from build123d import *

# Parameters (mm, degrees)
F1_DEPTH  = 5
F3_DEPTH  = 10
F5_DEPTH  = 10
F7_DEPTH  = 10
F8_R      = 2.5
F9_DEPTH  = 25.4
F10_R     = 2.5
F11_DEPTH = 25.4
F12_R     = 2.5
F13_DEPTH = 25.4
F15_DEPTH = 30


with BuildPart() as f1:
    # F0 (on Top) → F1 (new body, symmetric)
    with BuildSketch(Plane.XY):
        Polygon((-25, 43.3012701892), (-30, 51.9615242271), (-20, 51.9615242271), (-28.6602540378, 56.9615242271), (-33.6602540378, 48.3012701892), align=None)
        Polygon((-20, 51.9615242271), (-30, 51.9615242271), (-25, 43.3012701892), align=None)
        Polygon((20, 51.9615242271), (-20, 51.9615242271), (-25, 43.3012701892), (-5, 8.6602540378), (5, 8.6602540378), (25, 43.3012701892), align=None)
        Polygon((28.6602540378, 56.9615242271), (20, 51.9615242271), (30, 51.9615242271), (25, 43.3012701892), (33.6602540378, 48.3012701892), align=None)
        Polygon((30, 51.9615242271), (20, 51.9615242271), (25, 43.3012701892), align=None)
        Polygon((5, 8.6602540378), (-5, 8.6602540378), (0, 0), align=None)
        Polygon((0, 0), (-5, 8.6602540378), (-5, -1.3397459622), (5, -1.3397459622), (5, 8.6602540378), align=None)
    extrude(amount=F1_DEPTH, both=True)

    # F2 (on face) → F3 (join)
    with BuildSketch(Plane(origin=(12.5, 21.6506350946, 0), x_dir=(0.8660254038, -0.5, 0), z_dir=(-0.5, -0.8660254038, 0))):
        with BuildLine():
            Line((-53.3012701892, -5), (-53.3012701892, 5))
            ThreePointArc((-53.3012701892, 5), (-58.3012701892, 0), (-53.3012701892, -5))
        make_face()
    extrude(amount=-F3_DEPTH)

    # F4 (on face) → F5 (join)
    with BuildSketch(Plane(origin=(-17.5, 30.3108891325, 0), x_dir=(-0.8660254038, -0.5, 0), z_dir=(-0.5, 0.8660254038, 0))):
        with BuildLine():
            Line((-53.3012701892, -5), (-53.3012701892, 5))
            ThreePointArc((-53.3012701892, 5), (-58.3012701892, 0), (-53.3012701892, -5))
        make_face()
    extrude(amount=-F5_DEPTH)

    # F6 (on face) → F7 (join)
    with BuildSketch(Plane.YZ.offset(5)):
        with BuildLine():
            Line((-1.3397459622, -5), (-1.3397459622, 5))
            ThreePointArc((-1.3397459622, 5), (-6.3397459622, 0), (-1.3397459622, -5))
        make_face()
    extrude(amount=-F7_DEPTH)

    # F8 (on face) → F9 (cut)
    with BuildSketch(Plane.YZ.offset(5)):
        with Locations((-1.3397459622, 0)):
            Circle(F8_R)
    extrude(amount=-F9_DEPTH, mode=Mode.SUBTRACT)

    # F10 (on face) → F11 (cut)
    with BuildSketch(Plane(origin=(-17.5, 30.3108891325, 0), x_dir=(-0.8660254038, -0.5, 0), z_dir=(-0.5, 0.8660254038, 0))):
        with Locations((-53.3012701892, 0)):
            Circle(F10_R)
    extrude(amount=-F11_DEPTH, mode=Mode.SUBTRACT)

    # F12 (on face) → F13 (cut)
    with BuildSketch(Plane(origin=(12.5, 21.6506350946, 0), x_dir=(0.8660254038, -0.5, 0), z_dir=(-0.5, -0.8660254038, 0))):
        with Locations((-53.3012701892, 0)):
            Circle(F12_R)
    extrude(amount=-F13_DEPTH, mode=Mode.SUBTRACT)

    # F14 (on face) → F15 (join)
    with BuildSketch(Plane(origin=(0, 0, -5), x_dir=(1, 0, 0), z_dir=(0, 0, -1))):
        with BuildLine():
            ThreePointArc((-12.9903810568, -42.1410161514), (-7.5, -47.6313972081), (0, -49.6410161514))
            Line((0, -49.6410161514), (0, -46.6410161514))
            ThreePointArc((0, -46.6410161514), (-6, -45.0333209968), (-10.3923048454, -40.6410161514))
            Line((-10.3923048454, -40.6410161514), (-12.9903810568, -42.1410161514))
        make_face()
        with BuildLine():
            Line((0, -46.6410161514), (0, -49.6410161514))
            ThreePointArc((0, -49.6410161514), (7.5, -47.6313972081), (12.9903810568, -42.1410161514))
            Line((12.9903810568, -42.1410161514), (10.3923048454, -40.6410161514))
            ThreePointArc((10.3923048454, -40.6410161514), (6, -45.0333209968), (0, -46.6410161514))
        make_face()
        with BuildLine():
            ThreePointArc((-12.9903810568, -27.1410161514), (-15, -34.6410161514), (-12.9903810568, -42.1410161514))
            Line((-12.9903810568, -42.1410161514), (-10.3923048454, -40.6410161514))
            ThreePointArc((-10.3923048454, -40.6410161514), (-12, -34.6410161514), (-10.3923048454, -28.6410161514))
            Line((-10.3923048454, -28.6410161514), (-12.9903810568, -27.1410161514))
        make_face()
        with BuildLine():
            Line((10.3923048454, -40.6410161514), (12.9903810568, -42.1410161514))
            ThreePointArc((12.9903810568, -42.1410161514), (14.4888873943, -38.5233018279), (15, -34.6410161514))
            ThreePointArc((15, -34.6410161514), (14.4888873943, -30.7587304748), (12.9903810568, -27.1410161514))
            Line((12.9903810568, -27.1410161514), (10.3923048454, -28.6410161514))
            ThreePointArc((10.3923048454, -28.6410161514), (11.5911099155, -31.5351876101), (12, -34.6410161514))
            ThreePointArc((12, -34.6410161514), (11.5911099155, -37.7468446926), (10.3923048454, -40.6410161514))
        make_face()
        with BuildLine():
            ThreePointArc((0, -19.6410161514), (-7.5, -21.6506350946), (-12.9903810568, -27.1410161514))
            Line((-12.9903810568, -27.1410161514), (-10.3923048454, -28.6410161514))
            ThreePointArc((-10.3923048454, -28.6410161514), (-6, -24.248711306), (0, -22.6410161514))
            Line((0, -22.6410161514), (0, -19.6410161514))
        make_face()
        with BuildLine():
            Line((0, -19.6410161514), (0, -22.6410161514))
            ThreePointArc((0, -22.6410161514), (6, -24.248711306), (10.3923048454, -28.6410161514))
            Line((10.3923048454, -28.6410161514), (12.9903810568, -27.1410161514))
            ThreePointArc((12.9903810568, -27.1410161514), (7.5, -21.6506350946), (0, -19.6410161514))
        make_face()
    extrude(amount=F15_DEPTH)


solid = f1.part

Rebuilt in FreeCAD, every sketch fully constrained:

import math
import FreeCAD as App
import Part
import Sketcher

V = App.Vector
Q = App.Units.Quantity

doc = App.newDocument("Part")
params = doc.addObject("Spreadsheet::Sheet", "Params")
for row, (alias, value) in enumerate([
    ("sketch1_width", "10 mm"),
    ("sketch1_width2", "40 mm"),
    ("sketch1_length", "10 mm"),
    ("pad1_length", "10 mm"),
    ("sketch2_radius", "5 mm"),
    ("pad2_length", "10 mm"),
    ("sketch3_radius", "5 mm"),
    ("pad3_length", "10 mm"),
    ("sketch4_radius", "5 mm"),
    ("pad4_length", "10 mm"),
    ("sketch5_diameter", "5 mm"),
    ("pocket1_length", "25.4 mm"),
    ("sketch6_diameter", "5 mm"),
    ("pocket2_length", "25.4 mm"),
    ("sketch7_diameter", "5 mm"),
    ("pocket3_length", "25.4 mm"),
    ("sketch8_radius", "15 mm"),
    ("sketch8_radius2", "12 mm"),
    ("pad5_length", "30 mm"),
], start=1):
    params.set(f"A{row}", alias)
    params.set(f"B{row}", "=" + value)
    params.setAlias(f"B{row}", alias)

body = doc.addObject("PartDesign::Body", "Body")

# Sketch on XY plane
sketch1 = body.newObject("Sketcher::SketchObject", "Sketch")
sketch1.AttachmentSupport = (doc.getObject("XY_Plane"), [""])
sketch1.MapMode = "FlatFace"
sketch1.addGeometry([
    Part.LineSegment(V(-20, 52, 0), V(-29, 57, 0)),  # 0
    Part.LineSegment(V(-29, 57, 0), V(-34, 48, 0)),  # 1
    Part.LineSegment(V(-34, 48, 0), V(-25, 43, 0)),  # 2
    Part.LineSegment(V(-25, 43, 0), V(-5, 9, 0)),  # 3
    Part.LineSegment(V(-5, 9, 0), V(-5, -1, 0)),  # 4
    Part.LineSegment(V(-5, -1, 0), V(5, -1, 0)),  # 5
    Part.LineSegment(V(5, -1, 0), V(5, 9, 0)),  # 6
    Part.LineSegment(V(5, 9, 0), V(25, 43, 0)),  # 7
    Part.LineSegment(V(25, 43, 0), V(34, 48, 0)),  # 8
    Part.LineSegment(V(34, 48, 0), V(29, 57, 0)),  # 9
    Part.LineSegment(V(29, 57, 0), V(20, 52, 0)),  # 10
    Part.LineSegment(V(20, 52, 0), V(-20, 52, 0)),  # 11
], False)
sketch1.addConstraint([
    Sketcher.Constraint("Coincident", 0, 2, 1, 1),
    Sketcher.Constraint("Coincident", 1, 2, 2, 1),
    Sketcher.Constraint("Coincident", 2, 2, 3, 1),
    Sketcher.Constraint("Coincident", 3, 2, 4, 1),
    Sketcher.Constraint("Coincident", 4, 2, 5, 1),
    Sketcher.Constraint("Coincident", 5, 2, 6, 1),
    Sketcher.Constraint("Coincident", 6, 2, 7, 1),
    Sketcher.Constraint("Coincident", 7, 2, 8, 1),
    Sketcher.Constraint("Coincident", 8, 2, 9, 1),
    Sketcher.Constraint("Coincident", 9, 2, 10, 1),
    Sketcher.Constraint("Coincident", 10, 2, 11, 1),
    Sketcher.Constraint("Coincident", 11, 2, 0, 1),
    Sketcher.Constraint("Vertical", 4),
    Sketcher.Constraint("Horizontal", 5),
    Sketcher.Constraint("Vertical", 6),
    Sketcher.Constraint("Horizontal", 11),
    Sketcher.Constraint("Symmetric", 3, 2, 6, 2, -2),
    Sketcher.Constraint("Symmetric", 2, 2, 7, 2, -2),
    Sketcher.Constraint("Symmetric", 1, 2, 8, 2, -2),
    Sketcher.Constraint("Symmetric", 0, 2, 9, 2, -2),
    Sketcher.Constraint("Perpendicular", 0, 1),
    Sketcher.Constraint("Perpendicular", 1, 2),
    Sketcher.Constraint("Perpendicular", 2, 7),
    Sketcher.Constraint("Perpendicular", 9, 10),
    Sketcher.Constraint("Equal", 5, 4),
    Sketcher.Constraint("Equal", 0, 1),
    Sketcher.Constraint("Equal", 1, 2),
    Sketcher.Constraint("DistanceX", 5, 1, 5, 2, Q("10 mm")),
    Sketcher.Constraint("DistanceX", 11, 2, 11, 1, Q("40 mm")),
    Sketcher.Constraint("Angle", 0, Q("150 deg")),
    Sketcher.Constraint("Distance", 0, Q("10 mm")),
    Sketcher.Constraint("DistanceY", -1, 1, 1, 2, Q("48.30127 mm")),
])
sketch1.setExpression("Constraints[27]", "Params.sketch1_width")
sketch1.setExpression("Constraints[28]", "Params.sketch1_width2")
sketch1.setExpression("Constraints[30]", "Params.sketch1_length")
pad1 = body.newObject("PartDesign::Pad", "Pad")
pad1.Profile = sketch1
pad1.setExpression("Length", "Params.pad1_length")
pad1.Midplane = True

# Sketch on an angled plane
sketch2 = body.newObject("Sketcher::SketchObject", "Sketch001")
sketch2.Placement = App.Placement(V(12.5, 21.650635, 0), App.Rotation(V(0.866025404, -0.5, 0), V(0, 0, 1), V(-0.5, -0.866025404, 0), "ZXY"))
sketch2.addGeometry([
    Part.LineSegment(V(-53, -5, 0), V(-53, 5, 0)),
    Part.ArcOfCircle(Part.Circle(V(-53, 0, 0), V(0, 0, 1), 5), math.radians(90), math.radians(270)),
], False)
sketch2.addConstraint([
    Sketcher.Constraint("Coincident", 0, 1, 1, 2),
    Sketcher.Constraint("Coincident", 1, 1, 0, 2),
    Sketcher.Constraint("Vertical", 0),
    Sketcher.Constraint("PointOnObject", 1, 3, -1),
    Sketcher.Constraint("Vertical", 1, 3, 0, 1),
    Sketcher.Constraint("Radius", 1, Q("5 mm")),
    Sketcher.Constraint("DistanceX", 1, 3, -1, 1, Q("53.30127 mm")),
])
sketch2.setExpression("Constraints[5]", "Params.sketch2_radius")
pad2 = body.newObject("PartDesign::Pad", "Pad001")
pad2.Profile = sketch2
pad2.setExpression("Length", "Params.pad2_length")
pad2.Reversed = True

# Sketch on an angled plane
sketch3 = body.newObject("Sketcher::SketchObject", "Sketch002")
sketch3.Placement = App.Placement(V(-17.5, 30.310889, 0), App.Rotation(V(-0.866025404, -0.5, 0), V(0, 0, 1), V(-0.5, 0.866025404, 0), "ZXY"))
sketch3.addGeometry([
    Part.LineSegment(V(-53, -5, 0), V(-53, 5, 0)),
    Part.ArcOfCircle(Part.Circle(V(-53, 0, 0), V(0, 0, 1), 5), math.radians(90), math.radians(270)),
], False)
sketch3.addConstraint([
    Sketcher.Constraint("Coincident", 0, 1, 1, 2),
    Sketcher.Constraint("Coincident", 1, 1, 0, 2),
    Sketcher.Constraint("Vertical", 0),
    Sketcher.Constraint("PointOnObject", 1, 3, -1),
    Sketcher.Constraint("Vertical", 1, 3, 0, 1),
    Sketcher.Constraint("Radius", 1, Q("5 mm")),
    Sketcher.Constraint("DistanceX", 1, 3, -1, 1, Q("53.30127 mm")),
])
sketch3.setExpression("Constraints[5]", "Params.sketch3_radius")
pad3 = body.newObject("PartDesign::Pad", "Pad002")
pad3.Profile = sketch3
pad3.setExpression("Length", "Params.pad3_length")
pad3.Reversed = True

# Sketch on YZ plane
sketch4 = body.newObject("Sketcher::SketchObject", "Sketch003")
sketch4.AttachmentSupport = (doc.getObject("YZ_Plane"), [""])
sketch4.MapMode = "FlatFace"
sketch4.AttachmentOffset = App.Placement(V(0, 0, 5), App.Rotation())
sketch4.addGeometry([
    Part.LineSegment(V(-1, -5, 0), V(-1, 5, 0)),
    Part.ArcOfCircle(Part.Circle(V(-1, 0, 0), V(0, 0, 1), 5), math.radians(90), math.radians(270)),
], False)
sketch4.addConstraint([
    Sketcher.Constraint("Coincident", 0, 1, 1, 2),
    Sketcher.Constraint("Coincident", 1, 1, 0, 2),
    Sketcher.Constraint("Vertical", 0),
    Sketcher.Constraint("PointOnObject", 1, 3, -1),
    Sketcher.Constraint("Vertical", 1, 3, 0, 1),
    Sketcher.Constraint("Radius", 1, Q("5 mm")),
    Sketcher.Constraint("DistanceX", 1, 3, -1, 1, Q("1.339746 mm")),
])
sketch4.setExpression("Constraints[5]", "Params.sketch4_radius")
pad4 = body.newObject("PartDesign::Pad", "Pad003")
pad4.Profile = sketch4
pad4.setExpression("Length", "Params.pad4_length")
pad4.Reversed = True

# Sketch on YZ plane
sketch5 = body.newObject("Sketcher::SketchObject", "Sketch004")
sketch5.AttachmentSupport = (doc.getObject("YZ_Plane"), [""])
sketch5.MapMode = "FlatFace"
sketch5.AttachmentOffset = App.Placement(V(0, 0, 5), App.Rotation())
sketch5.addGeometry(Part.Circle(V(-1.3, 0, 0), V(0, 0, 1), 2.5), False)
sketch5.addConstraint([
    Sketcher.Constraint("PointOnObject", 0, 3, -1),
    Sketcher.Constraint("Diameter", 0, Q("5 mm")),
    Sketcher.Constraint("DistanceX", 0, 3, -1, 1, Q("1.339746 mm")),
])
sketch5.setExpression("Constraints[1]", "Params.sketch5_diameter")
pocket1 = body.newObject("PartDesign::Pocket", "Pocket")
pocket1.Profile = sketch5
pocket1.setExpression("Length", "Params.pocket1_length")

# Sketch on an angled plane
sketch6 = body.newObject("Sketcher::SketchObject", "Sketch005")
sketch6.Placement = App.Placement(V(-17.5, 30.310889, 0), App.Rotation(V(-0.866025404, -0.5, 0), V(0, 0, 1), V(-0.5, 0.866025404, 0), "ZXY"))
sketch6.addGeometry(Part.Circle(V(-53.3, 0, 0), V(0, 0, 1), 2.5), False)
sketch6.addConstraint([
    Sketcher.Constraint("PointOnObject", 0, 3, -1),
    Sketcher.Constraint("Diameter", 0, Q("5 mm")),
    Sketcher.Constraint("DistanceX", 0, 3, -1, 1, Q("53.30127 mm")),
])
sketch6.setExpression("Constraints[1]", "Params.sketch6_diameter")
pocket2 = body.newObject("PartDesign::Pocket", "Pocket001")
pocket2.Profile = sketch6
pocket2.setExpression("Length", "Params.pocket2_length")

# Sketch on an angled plane
sketch7 = body.newObject("Sketcher::SketchObject", "Sketch006")
sketch7.Placement = App.Placement(V(12.5, 21.650635, 0), App.Rotation(V(0.866025404, -0.5, 0), V(0, 0, 1), V(-0.5, -0.866025404, 0), "ZXY"))
sketch7.addGeometry(Part.Circle(V(-53.3, 0, 0), V(0, 0, 1), 2.5), False)
sketch7.addConstraint([
    Sketcher.Constraint("PointOnObject", 0, 3, -1),
    Sketcher.Constraint("Diameter", 0, Q("5 mm")),
    Sketcher.Constraint("DistanceX", 0, 3, -1, 1, Q("53.30127 mm")),
])
sketch7.setExpression("Constraints[1]", "Params.sketch7_diameter")
pocket3 = body.newObject("PartDesign::Pocket", "Pocket002")
pocket3.Profile = sketch7
pocket3.setExpression("Length", "Params.pocket3_length")

# Sketch on XY plane
sketch8 = body.newObject("Sketcher::SketchObject", "Sketch007")
sketch8.AttachmentSupport = (doc.getObject("XY_Plane"), [""])
sketch8.MapMode = "FlatFace"
sketch8.AttachmentOffset = App.Placement(V(0, 0, -5), App.Rotation())
sketch8.addGeometry([
    Part.ArcOfCircle(Part.Circle(V(0, 35, 0), V(0, 0, 1), 15), math.radians(90), math.radians(150)),  # 0
    Part.ArcOfCircle(Part.Circle(V(0, 35, 0), V(0, 0, 1), 15), math.radians(30), math.radians(90)),  # 1
    Part.ArcOfCircle(Part.Circle(V(0, 35, 0), V(0, 0, 1), 15), math.radians(0), math.radians(30)),  # 2
    Part.ArcOfCircle(Part.Circle(V(0, 35, 0), V(0, 0, 1), 15), math.radians(-30), math.radians(0)),  # 3
    Part.ArcOfCircle(Part.Circle(V(0, 35, 0), V(0, 0, 1), 15), math.radians(-90), math.radians(-30)),  # 4
    Part.ArcOfCircle(Part.Circle(V(0, 35, 0), V(0, 0, 1), 15), math.radians(-150), math.radians(-90)),  # 5
    Part.ArcOfCircle(Part.Circle(V(0, 35, 0), V(0, 0, 1), 15), math.radians(150), math.radians(210)),  # 6
    Part.ArcOfCircle(Part.Circle(V(0, 35, 0), V(0, 0, 1), 12), math.radians(-30), math.radians(0)),  # 7
    Part.ArcOfCircle(Part.Circle(V(0, 35, 0), V(0, 0, 1), 12), math.radians(0), math.radians(30)),  # 8
    Part.ArcOfCircle(Part.Circle(V(0, 35, 0), V(0, 0, 1), 12), math.radians(30), math.radians(90)),  # 9
    Part.ArcOfCircle(Part.Circle(V(0, 35, 0), V(0, 0, 1), 12), math.radians(90), math.radians(150)),  # 10
    Part.ArcOfCircle(Part.Circle(V(0, 35, 0), V(0, 0, 1), 12), math.radians(150), math.radians(210)),  # 11
    Part.ArcOfCircle(Part.Circle(V(0, 35, 0), V(0, 0, 1), 12), math.radians(-150), math.radians(-90)),  # 12
    Part.ArcOfCircle(Part.Circle(V(0, 35, 0), V(0, 0, 1), 12), math.radians(-90), math.radians(-30)),  # 13
], False)
sketch8.addConstraint([
    Sketcher.Constraint("Tangent", 0, 1, 1, 2),
    Sketcher.Constraint("Tangent", 1, 1, 2, 2),
    Sketcher.Constraint("Tangent", 2, 1, 3, 2),
    Sketcher.Constraint("Tangent", 3, 1, 4, 2),
    Sketcher.Constraint("Tangent", 4, 1, 5, 2),
    Sketcher.Constraint("Tangent", 5, 1, 6, 2),
    Sketcher.Constraint("Tangent", 6, 1, 0, 2),
    Sketcher.Constraint("Tangent", 7, 2, 8, 1),
    Sketcher.Constraint("Tangent", 8, 2, 9, 1),
    Sketcher.Constraint("Tangent", 9, 2, 10, 1),
    Sketcher.Constraint("Tangent", 10, 2, 11, 1),
    Sketcher.Constraint("Tangent", 11, 2, 12, 1),
    Sketcher.Constraint("Tangent", 12, 2, 13, 1),
    Sketcher.Constraint("Tangent", 13, 2, 7, 1),
    Sketcher.Constraint("Coincident", 2, 3, 0, 3),
    Sketcher.Constraint("Coincident", 4, 3, 0, 3),
    Sketcher.Constraint("Coincident", 7, 3, 0, 3),
    Sketcher.Constraint("Coincident", 9, 3, 0, 3),
    Sketcher.Constraint("Coincident", 11, 3, 0, 3),
    Sketcher.Constraint("Symmetric", 3, 1, 5, 1, -2),
    Sketcher.Constraint("PointOnObject", 0, 1, -2),
    Sketcher.Constraint("PointOnObject", 4, 1, -2),
    Sketcher.Constraint("PointOnObject", 9, 2, -2),
    Sketcher.Constraint("PointOnObject", 12, 2, -2),
    Sketcher.Constraint("Horizontal", 13, 3, 2, 1),
    Sketcher.Constraint("Horizontal", 1, 1, 6, 1),
    Sketcher.Constraint("Horizontal", 2, 1, 7, 2),
    Sketcher.Constraint("Horizontal", 8, 2, 10, 2),
    Sketcher.Constraint("Horizontal", 11, 2, 13, 2),
    Sketcher.Constraint("Vertical", 1, 1, 3, 1),
    Sketcher.Constraint("Vertical", 10, 2, 11, 2),
    Sketcher.Constraint("Radius", 0, Q("15 mm")),
    Sketcher.Constraint("Radius", 7, Q("12 mm")),
    Sketcher.Constraint("DistanceY", 3, 1, 1, 1, Q("15 mm")),
    Sketcher.Constraint("DistanceY", 7, 2, 8, 2, Q("6 mm")),
    Sketcher.Constraint("DistanceY", -1, 1, 0, 3, Q("34.641016 mm")),
])
sketch8.setExpression("Constraints[31]", "Params.sketch8_radius")
sketch8.setExpression("Constraints[32]", "Params.sketch8_radius2")
pad5 = body.newObject("PartDesign::Pad", "Pad004")
pad5.Profile = sketch8
pad5.setExpression("Length", "Params.pad5_length")
pad5.Reversed = True

doc.recompute()
